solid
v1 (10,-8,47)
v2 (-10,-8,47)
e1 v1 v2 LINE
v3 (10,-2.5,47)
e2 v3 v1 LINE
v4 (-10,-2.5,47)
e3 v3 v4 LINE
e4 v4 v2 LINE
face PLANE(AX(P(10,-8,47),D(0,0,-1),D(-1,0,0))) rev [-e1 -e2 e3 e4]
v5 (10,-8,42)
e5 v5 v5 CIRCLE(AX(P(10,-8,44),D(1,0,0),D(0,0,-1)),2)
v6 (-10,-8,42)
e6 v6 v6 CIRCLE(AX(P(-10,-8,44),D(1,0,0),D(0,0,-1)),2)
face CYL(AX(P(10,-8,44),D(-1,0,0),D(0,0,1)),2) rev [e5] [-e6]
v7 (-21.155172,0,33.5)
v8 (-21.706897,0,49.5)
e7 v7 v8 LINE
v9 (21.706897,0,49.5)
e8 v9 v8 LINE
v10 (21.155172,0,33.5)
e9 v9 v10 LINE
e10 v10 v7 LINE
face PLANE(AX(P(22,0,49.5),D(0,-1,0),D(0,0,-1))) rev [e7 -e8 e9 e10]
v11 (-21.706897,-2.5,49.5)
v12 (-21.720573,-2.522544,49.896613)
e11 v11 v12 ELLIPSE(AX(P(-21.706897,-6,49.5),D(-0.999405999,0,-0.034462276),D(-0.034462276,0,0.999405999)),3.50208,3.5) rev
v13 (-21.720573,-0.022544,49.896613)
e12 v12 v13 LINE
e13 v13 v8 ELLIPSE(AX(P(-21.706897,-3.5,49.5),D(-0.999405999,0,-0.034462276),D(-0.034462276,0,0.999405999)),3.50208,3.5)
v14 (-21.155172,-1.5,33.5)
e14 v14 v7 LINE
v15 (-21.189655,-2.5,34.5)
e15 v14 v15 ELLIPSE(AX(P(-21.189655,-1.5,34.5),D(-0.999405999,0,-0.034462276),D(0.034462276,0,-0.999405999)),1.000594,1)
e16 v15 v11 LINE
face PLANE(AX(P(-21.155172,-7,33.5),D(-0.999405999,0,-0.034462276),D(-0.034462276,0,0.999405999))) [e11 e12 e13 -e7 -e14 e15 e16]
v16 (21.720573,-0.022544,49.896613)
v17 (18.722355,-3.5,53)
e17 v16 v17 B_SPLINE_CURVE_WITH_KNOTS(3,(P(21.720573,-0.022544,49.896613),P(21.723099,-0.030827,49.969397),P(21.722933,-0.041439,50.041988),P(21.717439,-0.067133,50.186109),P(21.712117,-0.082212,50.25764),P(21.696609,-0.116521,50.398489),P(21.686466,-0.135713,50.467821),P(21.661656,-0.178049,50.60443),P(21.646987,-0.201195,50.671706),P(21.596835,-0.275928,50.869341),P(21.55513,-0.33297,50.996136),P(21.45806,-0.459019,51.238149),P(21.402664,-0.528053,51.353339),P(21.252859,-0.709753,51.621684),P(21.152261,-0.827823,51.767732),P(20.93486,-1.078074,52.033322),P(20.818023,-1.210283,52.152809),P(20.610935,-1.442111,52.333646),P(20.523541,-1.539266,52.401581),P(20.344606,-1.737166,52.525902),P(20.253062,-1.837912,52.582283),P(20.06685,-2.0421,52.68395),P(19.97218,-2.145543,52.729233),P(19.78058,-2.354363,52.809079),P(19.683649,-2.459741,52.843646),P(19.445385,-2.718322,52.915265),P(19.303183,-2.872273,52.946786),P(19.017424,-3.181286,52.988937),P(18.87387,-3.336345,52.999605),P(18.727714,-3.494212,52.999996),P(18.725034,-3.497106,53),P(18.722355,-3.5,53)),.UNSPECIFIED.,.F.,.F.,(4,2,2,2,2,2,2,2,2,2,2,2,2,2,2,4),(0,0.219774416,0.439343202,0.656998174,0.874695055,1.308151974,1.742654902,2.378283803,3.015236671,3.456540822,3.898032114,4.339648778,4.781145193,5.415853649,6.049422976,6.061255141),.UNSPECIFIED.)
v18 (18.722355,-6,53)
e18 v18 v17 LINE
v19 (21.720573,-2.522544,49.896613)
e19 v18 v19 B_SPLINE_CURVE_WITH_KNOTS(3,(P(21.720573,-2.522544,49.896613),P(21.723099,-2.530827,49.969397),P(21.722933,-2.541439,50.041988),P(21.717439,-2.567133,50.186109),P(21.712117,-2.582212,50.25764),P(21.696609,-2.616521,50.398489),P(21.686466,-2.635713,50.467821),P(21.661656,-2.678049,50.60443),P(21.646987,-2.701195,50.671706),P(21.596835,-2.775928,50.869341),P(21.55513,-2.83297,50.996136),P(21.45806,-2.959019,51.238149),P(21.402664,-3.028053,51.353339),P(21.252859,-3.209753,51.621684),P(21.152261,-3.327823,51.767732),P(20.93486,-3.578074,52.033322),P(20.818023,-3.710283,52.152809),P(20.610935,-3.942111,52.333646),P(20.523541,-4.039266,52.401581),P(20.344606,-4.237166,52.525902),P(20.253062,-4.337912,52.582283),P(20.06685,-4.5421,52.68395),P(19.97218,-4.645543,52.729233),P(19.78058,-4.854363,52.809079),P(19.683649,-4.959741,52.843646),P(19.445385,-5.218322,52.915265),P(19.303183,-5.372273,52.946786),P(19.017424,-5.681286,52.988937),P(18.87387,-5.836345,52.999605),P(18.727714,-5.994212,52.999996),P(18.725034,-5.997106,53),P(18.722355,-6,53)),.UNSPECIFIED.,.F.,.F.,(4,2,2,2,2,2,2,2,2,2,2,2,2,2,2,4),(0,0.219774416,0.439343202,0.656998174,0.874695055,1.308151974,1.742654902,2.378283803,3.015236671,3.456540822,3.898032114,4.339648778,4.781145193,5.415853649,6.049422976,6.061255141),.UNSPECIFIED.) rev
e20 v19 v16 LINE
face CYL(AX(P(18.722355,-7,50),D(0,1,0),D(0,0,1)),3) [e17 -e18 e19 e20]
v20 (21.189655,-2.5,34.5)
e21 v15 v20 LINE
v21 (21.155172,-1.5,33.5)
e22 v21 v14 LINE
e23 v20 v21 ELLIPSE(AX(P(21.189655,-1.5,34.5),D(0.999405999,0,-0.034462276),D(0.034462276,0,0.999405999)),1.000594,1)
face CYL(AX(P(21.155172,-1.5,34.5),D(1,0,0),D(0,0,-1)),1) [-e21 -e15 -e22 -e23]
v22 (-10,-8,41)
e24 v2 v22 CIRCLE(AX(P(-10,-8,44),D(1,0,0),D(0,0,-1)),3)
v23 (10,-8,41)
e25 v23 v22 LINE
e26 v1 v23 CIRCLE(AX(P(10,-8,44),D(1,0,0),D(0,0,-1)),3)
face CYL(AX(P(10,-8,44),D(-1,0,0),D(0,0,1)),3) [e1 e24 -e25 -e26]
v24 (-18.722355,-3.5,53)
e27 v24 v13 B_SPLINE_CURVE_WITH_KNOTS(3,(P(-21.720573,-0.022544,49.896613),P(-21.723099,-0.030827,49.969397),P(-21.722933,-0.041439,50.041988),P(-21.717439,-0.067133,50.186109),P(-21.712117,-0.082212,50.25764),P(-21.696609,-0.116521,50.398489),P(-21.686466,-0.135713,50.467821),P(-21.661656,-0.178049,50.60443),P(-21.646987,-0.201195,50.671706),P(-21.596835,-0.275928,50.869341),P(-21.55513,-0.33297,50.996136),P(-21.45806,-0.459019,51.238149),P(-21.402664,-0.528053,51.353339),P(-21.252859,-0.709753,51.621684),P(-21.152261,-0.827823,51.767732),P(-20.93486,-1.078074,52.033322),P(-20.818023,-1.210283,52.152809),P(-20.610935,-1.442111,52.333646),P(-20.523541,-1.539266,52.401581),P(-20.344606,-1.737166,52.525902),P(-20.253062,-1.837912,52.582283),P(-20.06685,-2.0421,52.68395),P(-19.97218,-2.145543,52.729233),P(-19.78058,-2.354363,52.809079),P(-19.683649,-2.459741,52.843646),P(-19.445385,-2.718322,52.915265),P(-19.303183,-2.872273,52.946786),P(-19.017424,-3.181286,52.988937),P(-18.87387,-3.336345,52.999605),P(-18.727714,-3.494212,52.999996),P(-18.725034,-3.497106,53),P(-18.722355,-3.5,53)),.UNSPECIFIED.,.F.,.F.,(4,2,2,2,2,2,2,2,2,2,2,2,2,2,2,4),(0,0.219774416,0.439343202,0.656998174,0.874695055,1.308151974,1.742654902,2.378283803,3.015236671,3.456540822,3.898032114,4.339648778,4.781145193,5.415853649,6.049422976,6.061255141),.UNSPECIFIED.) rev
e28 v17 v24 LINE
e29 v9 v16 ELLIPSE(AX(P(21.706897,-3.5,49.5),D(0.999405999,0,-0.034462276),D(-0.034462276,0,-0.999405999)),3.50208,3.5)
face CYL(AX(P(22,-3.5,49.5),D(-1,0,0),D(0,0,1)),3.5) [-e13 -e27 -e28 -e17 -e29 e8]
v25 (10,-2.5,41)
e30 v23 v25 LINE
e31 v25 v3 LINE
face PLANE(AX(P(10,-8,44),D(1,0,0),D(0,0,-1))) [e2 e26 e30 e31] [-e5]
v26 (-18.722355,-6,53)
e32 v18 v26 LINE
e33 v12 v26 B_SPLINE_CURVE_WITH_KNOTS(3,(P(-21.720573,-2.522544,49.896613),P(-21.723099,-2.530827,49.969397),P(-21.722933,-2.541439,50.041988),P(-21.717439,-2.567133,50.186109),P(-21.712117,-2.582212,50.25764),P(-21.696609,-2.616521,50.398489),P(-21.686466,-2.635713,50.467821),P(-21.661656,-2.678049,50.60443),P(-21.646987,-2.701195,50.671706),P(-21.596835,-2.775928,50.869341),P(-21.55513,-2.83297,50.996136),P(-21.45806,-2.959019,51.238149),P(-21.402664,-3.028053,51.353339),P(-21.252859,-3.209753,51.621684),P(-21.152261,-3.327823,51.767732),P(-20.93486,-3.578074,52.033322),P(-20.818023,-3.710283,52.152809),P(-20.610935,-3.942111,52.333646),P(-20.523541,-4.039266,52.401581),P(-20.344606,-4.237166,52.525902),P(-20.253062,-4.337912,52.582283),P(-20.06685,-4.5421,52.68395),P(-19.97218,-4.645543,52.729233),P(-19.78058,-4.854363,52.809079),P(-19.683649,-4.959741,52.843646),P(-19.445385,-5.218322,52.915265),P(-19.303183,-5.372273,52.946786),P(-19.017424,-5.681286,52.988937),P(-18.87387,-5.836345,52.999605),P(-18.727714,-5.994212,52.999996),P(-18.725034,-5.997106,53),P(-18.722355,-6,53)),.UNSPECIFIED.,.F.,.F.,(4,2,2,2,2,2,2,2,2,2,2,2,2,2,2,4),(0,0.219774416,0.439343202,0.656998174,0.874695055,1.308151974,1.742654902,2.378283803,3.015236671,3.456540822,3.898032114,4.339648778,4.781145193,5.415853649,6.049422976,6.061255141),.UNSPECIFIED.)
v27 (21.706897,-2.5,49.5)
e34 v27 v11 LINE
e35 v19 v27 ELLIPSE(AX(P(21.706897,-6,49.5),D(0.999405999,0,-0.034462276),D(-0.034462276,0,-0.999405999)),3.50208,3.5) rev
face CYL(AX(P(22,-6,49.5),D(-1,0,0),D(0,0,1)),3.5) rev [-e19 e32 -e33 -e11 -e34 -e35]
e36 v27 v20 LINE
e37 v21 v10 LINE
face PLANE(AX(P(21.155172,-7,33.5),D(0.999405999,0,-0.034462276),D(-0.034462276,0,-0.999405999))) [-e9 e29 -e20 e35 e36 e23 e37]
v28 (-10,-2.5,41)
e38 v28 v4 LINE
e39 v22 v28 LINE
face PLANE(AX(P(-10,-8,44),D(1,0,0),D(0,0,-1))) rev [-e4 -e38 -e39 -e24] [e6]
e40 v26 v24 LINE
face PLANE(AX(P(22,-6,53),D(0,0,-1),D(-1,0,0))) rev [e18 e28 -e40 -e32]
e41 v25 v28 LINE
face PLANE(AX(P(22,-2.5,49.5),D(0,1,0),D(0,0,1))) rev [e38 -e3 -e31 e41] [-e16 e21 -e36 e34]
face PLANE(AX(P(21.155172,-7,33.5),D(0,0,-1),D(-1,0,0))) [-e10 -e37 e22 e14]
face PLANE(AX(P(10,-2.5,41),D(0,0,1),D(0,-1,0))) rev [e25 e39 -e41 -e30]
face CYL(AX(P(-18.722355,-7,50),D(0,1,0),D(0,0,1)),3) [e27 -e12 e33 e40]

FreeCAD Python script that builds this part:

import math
import FreeCAD as App
import Part
import Sketcher
from FreeCAD import Vector


def edges_at(feature, points):
    """Names of the edges that pass closest to the given points."""
    edges = feature.Shape.Edges
    near = lambda p: min(range(len(edges)), key=lambda i: edges[i].distToShape(Part.Vertex(*p))[0])
    return sorted({f"Edge{near(p) + 1}" for p in points})


def add_polygon(sketch, points):
    """Adds a closed chain of lines whose ends are joined by coincident constraints."""
    first, n = sketch.GeometryCount, len(points)
    for a, b in zip(points, points[1:] + points[:1]):
        sketch.addGeometry(Part.LineSegment(App.Vector(*a, 0), App.Vector(*b, 0)), False)
    for i in range(n):
        sketch.addConstraint(Sketcher.Constraint("Coincident", first + i, 2, first + (i + 1) % n, 1))

doc = App.newDocument("Part")
body = doc.addObject("PartDesign::Body", "Body")

sketch1 = doc.addObject("Sketcher::SketchObject", "Sketch")
body.addObject(sketch1)
sketch1.AttachmentSupport = (doc.YZ_Plane, [""])
sketch1.MapMode = "FlatFace"
sketch1.addGeometry(Part.LineSegment(Vector(0, 0, 0), Vector(0, 49.5, 0)), False)
sketch1.addGeometry(Part.ArcOfCircle(Part.Circle(Vector(-3.5, 49.5, 0), Vector(0, 0, 1), 3.5), math.radians(0), math.radians(90)), False)
sketch1.addGeometry(Part.LineSegment(Vector(-3.5, 53, 0), Vector(-6, 53, 0)), False)
sketch1.addGeometry(Part.ArcOfCircle(Part.Circle(Vector(-6, 49.5, 0), Vector(0, 0, 1), 3.5), math.radians(0), math.radians(90)), False)
sketch1.addGeometry(Part.LineSegment(Vector(-2.5, 49.5, 0), Vector(-2.5, 0, 0)), False)
sketch1.addGeometry(Part.LineSegment(Vector(-2.5, 0, 0), Vector(0, 0, 0)), False)
sketch1.addConstraint(Sketcher.Constraint("Tangent", 0, 2, 1, 1))
sketch1.addConstraint(Sketcher.Constraint("Tangent", 1, 2, 2, 1))
sketch1.addConstraint(Sketcher.Constraint("Tangent", 2, 2, 3, 2))
sketch1.addConstraint(Sketcher.Constraint("Tangent", 3, 1, 4, 1))
sketch1.addConstraint(Sketcher.Constraint("Coincident", 4, 2, 5, 1))
sketch1.addConstraint(Sketcher.Constraint("Coincident", 5, 2, 0, 1))
sketch1.addConstraint(Sketcher.Constraint("Vertical", 0))
sketch1.addConstraint(Sketcher.Constraint("Horizontal", 2))
sketch1.addConstraint(Sketcher.Constraint("Vertical", 4))
sketch1.addConstraint(Sketcher.Constraint("Horizontal", 5))
sketch1.addConstraint(Sketcher.Constraint("Coincident", 5, 2, -1, 1))
sketch1.addConstraint(Sketcher.Constraint("Equal", 1, 3))
sketch1.addConstraint(Sketcher.Constraint("Radius", 1, 3.5))
sketch1.addConstraint(Sketcher.Constraint("DistanceX", 2, 2, 2, 1, 2.5))
sketch1.addConstraint(Sketcher.Constraint("DistanceY", 0, 1, 0, 2, 49.5))
pad1 = doc.addObject("PartDesign::Pad", "Pad")
body.addObject(pad1)
pad1.Profile = sketch1
pad1.Length = 44
pad1.Midplane = True

sketch2 = doc.addObject("Sketcher::SketchObject", "Sketch001")
body.addObject(sketch2)
sketch2.AttachmentSupport = (doc.XZ_Plane, [""])
sketch2.MapMode = "FlatFace"
add_polygon(sketch2, [(-22, 0), (-22, 58), (22, 58), (22, 0)])
sketch2.addGeometry(Part.LineSegment(Vector(-21.155172, 33.5, 0), Vector(21.155172, 33.5, 0)), False)
sketch2.addGeometry(Part.LineSegment(Vector(21.155172, 33.5, 0), Vector(21.720573, 49.896613, 0)), False)
sketch2.addGeometry(Part.ArcOfCircle(Part.Circle(Vector(18.722355, 50, 0), Vector(0, 0, 1), 3), math.radians(-1.974934), math.radians(90)), False)
sketch2.addGeometry(Part.LineSegment(Vector(18.722355, 53, 0), Vector(-18.722355, 53, 0)), False)
sketch2.addGeometry(Part.ArcOfCircle(Part.Circle(Vector(-18.722355, 50, 0), Vector(0, 0, 1), 3), math.radians(90), math.radians(181.974934)), False)
sketch2.addGeometry(Part.LineSegment(Vector(-21.720573, 49.896613, 0), Vector(-21.155172, 33.5, 0)), False)
sketch2.addConstraint(Sketcher.Constraint("Coincident", 4, 2, 5, 1))
sketch2.addConstraint(Sketcher.Constraint("Tangent", 5, 2, 6, 1))
sketch2.addConstraint(Sketcher.Constraint("Tangent", 6, 2, 7, 1))
sketch2.addConstraint(Sketcher.Constraint("Tangent", 7, 2, 8, 1))
sketch2.addConstraint(Sketcher.Constraint("Tangent", 8, 2, 9, 1))
sketch2.addConstraint(Sketcher.Constraint("Coincident", 9, 2, 4, 1))
sketch2.addConstraint(Sketcher.Constraint("Vertical", 0))
sketch2.addConstraint(Sketcher.Constraint("Horizontal", 1))
sketch2.addConstraint(Sketcher.Constraint("Vertical", 2))
sketch2.addConstraint(Sketcher.Constraint("Horizontal", 3))
sketch2.addConstraint(Sketcher.Constraint("Horizontal", 4))
sketch2.addConstraint(Sketcher.Constraint("Horizontal", 7))
sketch2.addConstraint(Sketcher.Constraint("Equal", 6, 8))
sketch2.addConstraint(Sketcher.Constraint("Symmetric", 2, 2, 3, 2, -1, 1))
sketch2.addConstraint(Sketcher.Constraint("Symmetric", 5, 2, 8, 2, -2))
sketch2.addConstraint(Sketcher.Constraint("Radius", 6, 3.0))
sketch2.addConstraint(Sketcher.Constraint("DistanceX", 1, 1, 1, 2, 44.0))
sketch2.addConstraint(Sketcher.Constraint("DistanceY", 0, 1, 0, 2, 58.0))
sketch2.addConstraint(Sketcher.Constraint("DistanceY", -1, 1, 6, 3, 50.0))
sketch2.addConstraint(Sketcher.Constraint("DistanceY", -1, 1, 4, 2, 33.5))
sketch2.addConstraint(Sketcher.Constraint("DistanceX", 7, 2, 7, 1, 37.44471))
sketch2.addConstraint(Sketcher.Constraint("DistanceX", 4, 2, 5, 2, 0.5654))
pocket1 = doc.addObject("PartDesign::Pocket", "Pocket")
body.addObject(pocket1)
pocket1.Profile = sketch2
pocket1.Length = 7
pocket1.Reversed = True
doc.recompute()

fillet = doc.addObject("PartDesign::Fillet", "Fillet")
body.addObject(fillet)
fillet.Base = (pocket1, edges_at(pocket1, [(0, -2.5, 33.5)]))
fillet.Radius = 1

sketch3 = doc.addObject("Sketcher::SketchObject", "Sketch002")
body.addObject(sketch3)
sketch3.AttachmentSupport = (doc.YZ_Plane, [""])
sketch3.MapMode = "FlatFace"
sketch3.addGeometry(Part.LineSegment(Vector(-2.5, 47, 0), Vector(-8, 47, 0)), False)
sketch3.addGeometry(Part.ArcOfCircle(Part.Circle(Vector(-8, 44, 0), Vector(0, 0, 1), 3), math.radians(90), math.radians(270)), False)
sketch3.addGeometry(Part.LineSegment(Vector(-8, 41, 0), Vector(-2.5, 41, 0)), False)
sketch3.addGeometry(Part.LineSegment(Vector(-2.5, 41, 0), Vector(-2.5, 47, 0)), False)
sketch3.addGeometry(Part.Circle(Vector(-8, 44, 0), Vector(0, 0, 1), 2), False)
sketch3.addConstraint(Sketcher.Constraint("Tangent", 0, 2, 1, 1))
sketch3.addConstraint(Sketcher.Constraint("Tangent", 1, 2, 2, 1))
sketch3.addConstraint(Sketcher.Constraint("Coincident", 2, 2, 3, 1))
sketch3.addConstraint(Sketcher.Constraint("Coincident", 3, 2, 0, 1))
sketch3.addConstraint(Sketcher.Constraint("Horizontal", 0))
sketch3.addConstraint(Sketcher.Constraint("Horizontal", 2))
sketch3.addConstraint(Sketcher.Constraint("Vertical", 3))
sketch3.addConstraint(Sketcher.Constraint("Coincident", 4, 3, 1, 3))
sketch3.addConstraint(Sketcher.Constraint("Diameter", 4, 4.0))
sketch3.addConstraint(Sketcher.Constraint("Radius", 1, 3.0))
sketch3.addConstraint(Sketcher.Constraint("DistanceX", 0, 2, 0, 1, 5.5))
sketch3.addConstraint(Sketcher.Constraint("DistanceX", 1, 3, -1, 1, 8.0))
sketch3.addConstraint(Sketcher.Constraint("DistanceY", -1, 1, 1, 3, 44.0))
pad2 = doc.addObject("PartDesign::Pad", "Pad001")
body.addObject(pad2)
pad2.Profile = sketch3
pad2.Length = 20
pad2.Midplane = True

doc.recompute()
